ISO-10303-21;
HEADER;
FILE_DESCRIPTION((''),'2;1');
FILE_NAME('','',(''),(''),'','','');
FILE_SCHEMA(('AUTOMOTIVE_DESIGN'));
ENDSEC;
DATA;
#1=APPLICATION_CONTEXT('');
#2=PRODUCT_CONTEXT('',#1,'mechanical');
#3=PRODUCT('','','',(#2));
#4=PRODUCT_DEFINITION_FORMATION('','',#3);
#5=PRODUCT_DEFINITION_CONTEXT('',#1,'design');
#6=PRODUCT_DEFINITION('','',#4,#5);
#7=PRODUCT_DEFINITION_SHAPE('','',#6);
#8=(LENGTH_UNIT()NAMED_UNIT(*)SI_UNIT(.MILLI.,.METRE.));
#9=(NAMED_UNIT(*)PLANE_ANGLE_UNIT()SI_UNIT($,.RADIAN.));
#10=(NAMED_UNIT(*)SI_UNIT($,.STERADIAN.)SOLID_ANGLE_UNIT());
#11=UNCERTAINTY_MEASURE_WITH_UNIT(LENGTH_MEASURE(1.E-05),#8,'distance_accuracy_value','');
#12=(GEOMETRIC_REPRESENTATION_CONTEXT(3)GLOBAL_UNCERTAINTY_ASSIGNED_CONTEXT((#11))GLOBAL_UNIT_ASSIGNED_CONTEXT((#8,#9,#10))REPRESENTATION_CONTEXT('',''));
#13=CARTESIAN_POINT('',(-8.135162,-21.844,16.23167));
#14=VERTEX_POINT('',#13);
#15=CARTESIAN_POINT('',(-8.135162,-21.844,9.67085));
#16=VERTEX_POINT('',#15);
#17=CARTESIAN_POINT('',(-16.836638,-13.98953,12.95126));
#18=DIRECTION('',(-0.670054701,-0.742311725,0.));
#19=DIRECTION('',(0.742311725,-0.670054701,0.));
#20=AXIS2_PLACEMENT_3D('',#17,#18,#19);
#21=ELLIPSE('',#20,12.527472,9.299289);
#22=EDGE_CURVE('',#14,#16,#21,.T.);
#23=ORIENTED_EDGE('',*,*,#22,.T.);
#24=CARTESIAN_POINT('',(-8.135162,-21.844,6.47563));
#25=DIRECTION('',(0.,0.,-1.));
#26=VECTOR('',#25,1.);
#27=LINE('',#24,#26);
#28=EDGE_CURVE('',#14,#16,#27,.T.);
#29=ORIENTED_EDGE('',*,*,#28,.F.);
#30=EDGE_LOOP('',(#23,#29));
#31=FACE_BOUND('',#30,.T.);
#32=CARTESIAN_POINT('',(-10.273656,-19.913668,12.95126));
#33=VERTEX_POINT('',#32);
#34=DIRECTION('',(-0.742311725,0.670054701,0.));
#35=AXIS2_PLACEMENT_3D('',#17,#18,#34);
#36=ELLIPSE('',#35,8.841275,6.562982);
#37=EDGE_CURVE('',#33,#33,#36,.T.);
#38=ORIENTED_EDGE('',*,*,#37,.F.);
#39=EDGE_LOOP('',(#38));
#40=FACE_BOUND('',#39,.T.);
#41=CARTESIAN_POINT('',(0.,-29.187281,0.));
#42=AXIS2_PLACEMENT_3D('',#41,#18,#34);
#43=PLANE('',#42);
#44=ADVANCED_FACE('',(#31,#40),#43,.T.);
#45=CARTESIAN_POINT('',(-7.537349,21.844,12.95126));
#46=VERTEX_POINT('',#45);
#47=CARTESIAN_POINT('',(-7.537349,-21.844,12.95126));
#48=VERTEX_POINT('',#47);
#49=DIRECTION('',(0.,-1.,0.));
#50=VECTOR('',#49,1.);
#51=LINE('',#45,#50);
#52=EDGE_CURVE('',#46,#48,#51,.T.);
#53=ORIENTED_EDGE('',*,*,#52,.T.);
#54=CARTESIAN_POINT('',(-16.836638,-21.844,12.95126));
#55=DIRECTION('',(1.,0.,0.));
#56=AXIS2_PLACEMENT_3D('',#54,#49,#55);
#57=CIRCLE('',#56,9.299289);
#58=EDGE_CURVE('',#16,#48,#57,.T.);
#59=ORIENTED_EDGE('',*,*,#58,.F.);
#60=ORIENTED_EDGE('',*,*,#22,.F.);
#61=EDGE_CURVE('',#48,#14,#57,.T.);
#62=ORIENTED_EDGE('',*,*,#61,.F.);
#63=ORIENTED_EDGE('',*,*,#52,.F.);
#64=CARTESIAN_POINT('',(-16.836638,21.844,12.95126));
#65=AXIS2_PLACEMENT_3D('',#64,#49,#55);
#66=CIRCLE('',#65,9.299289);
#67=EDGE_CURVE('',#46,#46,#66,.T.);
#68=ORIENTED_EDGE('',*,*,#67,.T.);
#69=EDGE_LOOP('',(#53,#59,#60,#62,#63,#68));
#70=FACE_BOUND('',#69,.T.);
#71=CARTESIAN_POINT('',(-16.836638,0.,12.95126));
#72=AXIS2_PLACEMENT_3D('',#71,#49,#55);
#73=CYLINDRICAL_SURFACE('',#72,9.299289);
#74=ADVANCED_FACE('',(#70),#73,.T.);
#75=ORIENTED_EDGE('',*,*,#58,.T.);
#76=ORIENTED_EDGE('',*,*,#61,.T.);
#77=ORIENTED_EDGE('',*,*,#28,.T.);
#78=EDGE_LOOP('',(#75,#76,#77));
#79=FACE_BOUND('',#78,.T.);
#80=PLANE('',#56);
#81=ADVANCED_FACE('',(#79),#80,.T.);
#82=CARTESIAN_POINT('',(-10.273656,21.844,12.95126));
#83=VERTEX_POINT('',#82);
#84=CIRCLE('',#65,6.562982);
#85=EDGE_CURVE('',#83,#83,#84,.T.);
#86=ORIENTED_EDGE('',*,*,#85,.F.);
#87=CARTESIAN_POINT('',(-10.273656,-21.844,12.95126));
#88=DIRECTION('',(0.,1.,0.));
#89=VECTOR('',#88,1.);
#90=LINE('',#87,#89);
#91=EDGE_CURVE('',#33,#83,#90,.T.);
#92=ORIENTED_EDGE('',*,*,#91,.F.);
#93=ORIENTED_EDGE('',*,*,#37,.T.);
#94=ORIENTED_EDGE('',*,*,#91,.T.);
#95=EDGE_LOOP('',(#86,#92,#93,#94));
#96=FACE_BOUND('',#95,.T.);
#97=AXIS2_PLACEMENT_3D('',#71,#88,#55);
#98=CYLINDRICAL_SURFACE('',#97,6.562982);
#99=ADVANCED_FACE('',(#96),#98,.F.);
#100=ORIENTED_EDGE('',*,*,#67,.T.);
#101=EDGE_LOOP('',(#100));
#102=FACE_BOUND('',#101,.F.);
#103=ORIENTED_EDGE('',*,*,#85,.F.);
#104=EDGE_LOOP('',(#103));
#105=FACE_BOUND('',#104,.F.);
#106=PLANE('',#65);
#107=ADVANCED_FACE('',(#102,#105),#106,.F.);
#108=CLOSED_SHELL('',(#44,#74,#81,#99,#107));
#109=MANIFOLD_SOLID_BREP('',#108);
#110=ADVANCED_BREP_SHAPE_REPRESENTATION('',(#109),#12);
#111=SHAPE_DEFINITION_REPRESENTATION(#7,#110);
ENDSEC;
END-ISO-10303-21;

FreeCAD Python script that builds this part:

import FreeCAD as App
import Part
import Sketcher
Q = App.Units.Quantity

doc = App.newDocument("Part")
params = doc.addObject("Spreadsheet::Sheet", "Params")
for row, (alias, value) in enumerate([
    ("pad1_length", "1.72 in"),
    ("pocket1_length", "1 in"),
], start=1):
    params.set(f"A{row}", alias)
    params.set(f"B{row}", "=" + value)
    params.setAlias(f"B{row}", alias)

body = doc.addObject("PartDesign::Body", "Body")

# Sketch on XZ plane
sketch1 = body.newObject("Sketcher::SketchObject", "Sketch")
sketch1.AttachmentSupport = (doc.getObject("XZ_Plane"), [""])
sketch1.MapMode = "FlatFace"
sketch1.addGeometry([
    Part.Circle(App.Vector(-17, 13, 0), App.Vector(0, 0, 1), 9),
    Part.Circle(App.Vector(-17, 13, 0), App.Vector(0, 0, 1), 7),
], False)
sketch1.addConstraint([
    Sketcher.Constraint("Coincident", 1, 3, 0, 3),
    Sketcher.Constraint("Diameter", 0, Q("18.598578 mm")),
    Sketcher.Constraint("Diameter", 1, Q("13.125964 mm")),
    Sketcher.Constraint("DistanceX", 0, 3, -1, 1, Q("16.836638 mm")),
    Sketcher.Constraint("DistanceY", -1, 1, 0, 3, Q("12.95126 mm")),
])
pad1 = body.newObject("PartDesign::Pad", "Pad")
pad1.Profile = sketch1
pad1.setExpression("Length", "Params.pad1_length")
pad1.Midplane = True

# Sketch on XY plane
sketch2 = body.newObject("Sketcher::SketchObject", "Sketch001")
sketch2.AttachmentSupport = (doc.getObject("XY_Plane"), [""])
sketch2.MapMode = "FlatFace"
sketch2.addGeometry([
    Part.LineSegment(App.Vector(-33, -29, 0), App.Vector(0, -29, 0)),
    Part.LineSegment(App.Vector(0, -29, 0), App.Vector(-33, 1, 0)),
    Part.LineSegment(App.Vector(-33, 1, 0), App.Vector(-33, -29, 0)),
], False)
sketch2.addConstraint([
    Sketcher.Constraint("Coincident", 0, 2, 1, 1),
    Sketcher.Constraint("Coincident", 1, 2, 2, 1),
    Sketcher.Constraint("Coincident", 2, 2, 0, 1),
    Sketcher.Constraint("Horizontal", 0),
    Sketcher.Constraint("Vertical", 2),
    Sketcher.Constraint("PointOnObject", 0, 2, -2),
    Sketcher.Constraint("DistanceX", 0, 1, 0, 2, Q("33.079948 mm")),
    Sketcher.Constraint("DistanceY", 2, 2, 2, 1, Q("29.859928 mm")),
    Sketcher.Constraint("DistanceY", 0, 2, -1, 1, Q("29.187281 mm")),
])
pocket1 = body.newObject("PartDesign::Pocket", "Pocket")
pocket1.Profile = sketch2
pocket1.setExpression("Length", "Params.pocket1_length")
pocket1.Reversed = True

doc.recompute()
